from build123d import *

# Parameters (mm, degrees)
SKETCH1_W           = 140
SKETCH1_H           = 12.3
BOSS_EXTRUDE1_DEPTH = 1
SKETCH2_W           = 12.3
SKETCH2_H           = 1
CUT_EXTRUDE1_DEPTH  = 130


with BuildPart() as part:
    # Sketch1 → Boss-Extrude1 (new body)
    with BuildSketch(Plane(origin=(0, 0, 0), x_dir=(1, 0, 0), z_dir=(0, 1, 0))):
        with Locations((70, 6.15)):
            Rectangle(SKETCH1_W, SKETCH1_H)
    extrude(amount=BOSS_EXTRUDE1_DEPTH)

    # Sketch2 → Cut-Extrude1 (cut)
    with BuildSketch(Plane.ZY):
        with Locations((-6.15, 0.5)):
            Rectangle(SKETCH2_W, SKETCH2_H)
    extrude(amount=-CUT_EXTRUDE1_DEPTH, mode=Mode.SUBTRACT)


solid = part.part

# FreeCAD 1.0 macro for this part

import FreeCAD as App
import Part
import Sketcher

V = App.Vector
Q = App.Units.Quantity


def add_polygon(sketch, points):
    """Adds a closed chain of lines whose ends are joined by coincident constraints."""
    first, n = sketch.GeometryCount, len(points)
    for a, b in zip(points, points[1:] + points[:1]):
        sketch.addGeometry(Part.LineSegment(App.Vector(*a, 0), App.Vector(*b, 0)), False)
    for i in range(n):
        sketch.addConstraint(Sketcher.Constraint("Coincident", first + i, 2, first + (i + 1) % n, 1))

doc = App.newDocument("Part")
body = doc.addObject("PartDesign::Body", "Body")

# Sketch on XZ plane
sketch1 = body.newObject("Sketcher::SketchObject", "Sketch")
sketch1.AttachmentSupport = (doc.getObject("XZ_Plane"), [""])
sketch1.MapMode = "FlatFace"
add_polygon(sketch1, [(0, -12), (0, 0), (140, 0), (140, -12)])  # lines 0-3
sketch1.addConstraint([
    Sketcher.Constraint("Vertical", 0),
    Sketcher.Constraint("Horizontal", 1),
    Sketcher.Constraint("Vertical", 2),
    Sketcher.Constraint("Horizontal", 3),
    Sketcher.Constraint("Coincident", 0, 2, -1, 1),
    Sketcher.Constraint("DistanceX", 1, 1, 1, 2, Q("140 mm")),
    Sketcher.Constraint("DistanceY", 0, 1, 0, 2, Q("12.3 mm")),
])
pad1 = body.newObject("PartDesign::Pad", "Pad")
pad1.Profile = sketch1
pad1.Length = 1
pad1.Reversed = True

# Sketch on YZ plane
sketch2 = body.newObject("Sketcher::SketchObject", "Sketch001")
sketch2.AttachmentSupport = (doc.getObject("YZ_Plane"), [""])
sketch2.MapMode = "FlatFace"
add_polygon(sketch2, [(1, -12.3), (0, -12.3), (0, 0), (1, 0)])  # lines 0-3
sketch2.addConstraint([
    Sketcher.Constraint("Horizontal", 0),
    Sketcher.Constraint("Vertical", 1),
    Sketcher.Constraint("Horizontal", 2),
    Sketcher.Constraint("Vertical", 3),
    Sketcher.Constraint("Coincident", 1, 2, -1, 1),
    Sketcher.Constraint("DistanceX", 0, 2, 0, 1, Q("1 mm")),
    Sketcher.Constraint("DistanceY", 1, 1, 1, 2, Q("12.3 mm")),
])
pocket1 = body.newObject("PartDesign::Pocket", "Pocket")
pocket1.Profile = sketch2
pocket1.Length = 130
pocket1.Reversed = True

doc.recompute()
